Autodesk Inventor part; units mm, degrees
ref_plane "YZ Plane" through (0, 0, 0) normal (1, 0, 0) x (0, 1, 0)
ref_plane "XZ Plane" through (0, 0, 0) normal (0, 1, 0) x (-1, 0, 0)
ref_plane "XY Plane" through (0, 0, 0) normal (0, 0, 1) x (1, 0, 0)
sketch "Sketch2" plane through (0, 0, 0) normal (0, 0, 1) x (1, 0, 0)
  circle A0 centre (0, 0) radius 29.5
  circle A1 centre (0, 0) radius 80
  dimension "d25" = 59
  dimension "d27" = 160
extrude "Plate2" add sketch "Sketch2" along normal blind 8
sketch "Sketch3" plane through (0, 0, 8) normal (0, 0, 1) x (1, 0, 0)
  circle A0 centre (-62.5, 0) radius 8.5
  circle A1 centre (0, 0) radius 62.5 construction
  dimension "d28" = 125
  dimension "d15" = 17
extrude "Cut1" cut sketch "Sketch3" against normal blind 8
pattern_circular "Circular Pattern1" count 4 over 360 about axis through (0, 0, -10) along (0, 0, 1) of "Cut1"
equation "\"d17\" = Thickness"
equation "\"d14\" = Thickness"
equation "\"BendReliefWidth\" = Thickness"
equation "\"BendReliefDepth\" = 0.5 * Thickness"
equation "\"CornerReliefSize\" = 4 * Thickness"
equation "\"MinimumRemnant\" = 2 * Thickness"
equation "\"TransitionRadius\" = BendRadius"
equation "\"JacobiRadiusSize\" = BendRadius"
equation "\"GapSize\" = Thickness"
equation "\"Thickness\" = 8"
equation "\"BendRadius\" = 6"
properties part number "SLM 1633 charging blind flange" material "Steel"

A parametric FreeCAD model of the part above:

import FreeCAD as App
import Part
import Sketcher
from FreeCAD import Vector

doc = App.newDocument("Part")
body = doc.addObject("PartDesign::Body", "Body")

# Sketch on XY plane
sketch1 = body.newObject("Sketcher::SketchObject", "Sketch")
sketch1.AttachmentSupport = (doc.getObject("XY_Plane"), [""])
sketch1.MapMode = "FlatFace"
sketch1.addGeometry([
    Part.Circle(Vector(0, 0, 0), Vector(0, 0, 1), 80),
    Part.Circle(Vector(0, 0, 0), Vector(0, 0, 1), 30),
], False)
sketch1.addConstraint([
    Sketcher.Constraint("Coincident", 0, 3, -1, 1),
    Sketcher.Constraint("Coincident", 1, 3, -1, 1),
    Sketcher.Constraint("Diameter", 0, 160.0),
    Sketcher.Constraint("Diameter", 1, 59.0),
])
pad1 = body.newObject("PartDesign::Pad", "Pad")
pad1.Profile = sketch1
pad1.Length = 8

# Sketch on XY plane
sketch2 = body.newObject("Sketcher::SketchObject", "Sketch001")
sketch2.AttachmentSupport = (doc.getObject("XY_Plane"), [""])
sketch2.MapMode = "FlatFace"
sketch2.AttachmentOffset = App.Placement(Vector(0, 0, 8), App.Rotation())
sketch2.addGeometry(Part.Circle(Vector(-62, 0, 0), Vector(0, 0, 1), 8), False)
sketch2.addConstraint([
    Sketcher.Constraint("PointOnObject", 0, 3, -1),
    Sketcher.Constraint("Diameter", 0, 17.0),
    Sketcher.Constraint("DistanceX", 0, 3, -1, 1, 62.5),
])
pocket1 = body.newObject("PartDesign::Pocket", "Pocket")
pocket1.Profile = sketch2
pocket1.Length = 8
doc.recompute()

polarpattern = body.newObject("PartDesign::PolarPattern", "PolarPattern")
polarpattern.Originals = [pocket1]
polarpattern.Axis = (doc.getObject("Z_Axis"), [""])
polarpattern.Angle = 360
polarpattern.Occurrences = 4
body.Tip = polarpattern

doc.recompute()
